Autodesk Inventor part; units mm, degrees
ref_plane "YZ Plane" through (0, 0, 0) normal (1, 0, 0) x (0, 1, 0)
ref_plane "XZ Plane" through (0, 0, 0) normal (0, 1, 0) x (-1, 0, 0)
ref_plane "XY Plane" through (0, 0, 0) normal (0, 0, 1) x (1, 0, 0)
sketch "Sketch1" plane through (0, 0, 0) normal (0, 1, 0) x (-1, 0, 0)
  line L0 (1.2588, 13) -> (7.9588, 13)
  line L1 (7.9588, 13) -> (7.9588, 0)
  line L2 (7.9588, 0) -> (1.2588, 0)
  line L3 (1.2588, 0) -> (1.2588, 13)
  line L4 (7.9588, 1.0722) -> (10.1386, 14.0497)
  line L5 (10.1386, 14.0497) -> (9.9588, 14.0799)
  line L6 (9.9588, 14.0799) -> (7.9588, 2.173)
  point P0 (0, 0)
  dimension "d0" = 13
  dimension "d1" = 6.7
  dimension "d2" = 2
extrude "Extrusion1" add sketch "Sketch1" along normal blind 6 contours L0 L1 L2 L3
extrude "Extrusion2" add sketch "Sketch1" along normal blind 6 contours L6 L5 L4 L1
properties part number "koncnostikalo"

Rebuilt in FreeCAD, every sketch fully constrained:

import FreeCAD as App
import Part
import Sketcher
from FreeCAD import Vector

doc = App.newDocument("Part")
body = doc.addObject("PartDesign::Body", "Body")

sketch1 = doc.addObject("Sketcher::SketchObject", "Sketch")
body.addObject(sketch1)
sketch1.AttachmentSupport = (doc.XZ_Plane, [""])
sketch1.MapMode = "FlatFace"
sketch1.addGeometry([
    Part.LineSegment(Vector(-8, 13, 0), Vector(-1, 13, 0)),
    Part.LineSegment(Vector(-1, 13, 0), Vector(-1, 0, 0)),
    Part.LineSegment(Vector(-1, 0, 0), Vector(-8, 0, 0)),
    Part.LineSegment(Vector(-8, 0, 0), Vector(-8, 13, 0)),
], False)
sketch1.addConstraint([
    Sketcher.Constraint("Coincident", 0, 2, 1, 1),
    Sketcher.Constraint("Coincident", 1, 2, 2, 1),
    Sketcher.Constraint("Coincident", 2, 2, 3, 1),
    Sketcher.Constraint("Coincident", 3, 2, 0, 1),
    Sketcher.Constraint("Horizontal", 0),
    Sketcher.Constraint("Vertical", 1),
    Sketcher.Constraint("Horizontal", 2),
    Sketcher.Constraint("Vertical", 3),
    Sketcher.Constraint("PointOnObject", 1, 2, -1),
    Sketcher.Constraint("DistanceY", 1, 2, 1, 1, 13.0),
    Sketcher.Constraint("DistanceX", 0, 1, 0, 2, 6.7),
    Sketcher.Constraint("DistanceX", 0, 2, -1, 1, 1.2588),
])
pad1 = doc.addObject("PartDesign::Pad", "Pad")
body.addObject(pad1)
pad1.Profile = sketch1
pad1.Length = 6
pad1.Reversed = True

sketch2 = doc.addObject("Sketcher::SketchObject", "Sketch001")
body.addObject(sketch2)
sketch2.AttachmentSupport = (doc.XZ_Plane, [""])
sketch2.MapMode = "FlatFace"
sketch2.addGeometry([
    Part.LineSegment(Vector(-9.96, 14.08, 0), Vector(-7.96, 2.17, 0)),
    Part.LineSegment(Vector(-7.96, 2.17, 0), Vector(-7.96, 1.07, 0)),
    Part.LineSegment(Vector(-7.96, 1.07, 0), Vector(-10.14, 14.05, 0)),
    Part.LineSegment(Vector(-10.14, 14.05, 0), Vector(-9.96, 14.08, 0)),
], False)
sketch2.addConstraint([
    Sketcher.Constraint("Coincident", 0, 2, 1, 1),
    Sketcher.Constraint("Coincident", 1, 2, 2, 1),
    Sketcher.Constraint("Coincident", 2, 2, 3, 1),
    Sketcher.Constraint("Coincident", 3, 2, 0, 1),
    Sketcher.Constraint("Vertical", 1),
    Sketcher.Constraint("Parallel", 0, 2),
    Sketcher.Constraint("Perpendicular", 2, 3),
    Sketcher.Constraint("DistanceX", 3, 2, 0, 2, 2.0),
    Sketcher.Constraint("DistanceY", -1, 1, 3, 2, 14.08),
    Sketcher.Constraint("DistanceY", 1, 2, 1, 1, 1.1008),
    Sketcher.Constraint("DistanceY", -1, 1, 0, 2, 2.173),
    Sketcher.Constraint("DistanceX", 0, 2, -1, 1, 7.9588),
])
pad2 = doc.addObject("PartDesign::Pad", "Pad001")
body.addObject(pad2)
pad2.Profile = sketch2
pad2.Length = 6
pad2.Reversed = True

doc.recompute()
